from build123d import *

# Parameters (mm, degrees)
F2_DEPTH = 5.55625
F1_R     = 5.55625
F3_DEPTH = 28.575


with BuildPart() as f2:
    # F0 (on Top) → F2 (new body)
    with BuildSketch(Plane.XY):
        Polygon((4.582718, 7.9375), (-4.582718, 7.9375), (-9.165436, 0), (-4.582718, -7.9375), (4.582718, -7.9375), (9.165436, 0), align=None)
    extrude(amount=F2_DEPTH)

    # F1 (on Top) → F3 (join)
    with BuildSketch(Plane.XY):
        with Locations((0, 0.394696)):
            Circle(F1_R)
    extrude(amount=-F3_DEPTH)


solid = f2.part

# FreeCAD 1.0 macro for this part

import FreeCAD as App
import Part
import Sketcher
Q = App.Units.Quantity


def add_polygon(sketch, points):
    """Adds a closed chain of lines whose ends are joined by coincident constraints."""
    first, n = sketch.GeometryCount, len(points)
    for a, b in zip(points, points[1:] + points[:1]):
        sketch.addGeometry(Part.LineSegment(App.Vector(*a, 0), App.Vector(*b, 0)), False)
    for i in range(n):
        sketch.addConstraint(Sketcher.Constraint("Coincident", first + i, 2, first + (i + 1) % n, 1))

doc = App.newDocument("Part")
body = doc.addObject("PartDesign::Body", "Body")

sketch1 = body.newObject("Sketcher::SketchObject", "Sketch")
sketch1.AttachmentSupport = (doc.getObject("XY_Plane"), [""])
sketch1.MapMode = "FlatFace"
add_polygon(sketch1, [(4.582718, 7.9375), (-4.582718, 7.9375), (-9.165436, 0), (-4.582718, -7.9375), (4.582718, -7.9375), (9.165436, 0)])
sketch1.addConstraint([
    Sketcher.Constraint("Horizontal", 0),
    Sketcher.Constraint("Horizontal", 3),
    Sketcher.Constraint("Symmetric", 0, 2, 3, 2, -1, 1),
    Sketcher.Constraint("Symmetric", 1, 2, 4, 2, -1, 1),
    Sketcher.Constraint("PointOnObject", 1, 2, -1),
    Sketcher.Constraint("Parallel", 2, 5),
    Sketcher.Constraint("Vertical", 0, 2, 2, 2),
    Sketcher.Constraint("Angle", 1, Q("-120.000001 deg")),
    Sketcher.Constraint("DistanceY", -1, 1, 0, 2, Q("0.3125 in")),
    Sketcher.Constraint("DistanceX", 0, 2, 0, 1, Q("9.165436 mm")),
])
pad1 = body.newObject("PartDesign::Pad", "Pad")
pad1.Profile = sketch1
pad1.Length = Q("0.21875 in")

sketch2 = body.newObject("Sketcher::SketchObject", "Sketch001")
sketch2.AttachmentSupport = (doc.getObject("XY_Plane"), [""])
sketch2.MapMode = "FlatFace"
sketch2.addGeometry(Part.Circle(App.Vector(0, 0.394696, 0), App.Vector(0, 0, 1), 5.55625), False)
sketch2.addConstraint([
    Sketcher.Constraint("PointOnObject", 0, 3, -2),
    Sketcher.Constraint("Diameter", 0, Q("0.4375 in")),
    Sketcher.Constraint("DistanceY", -1, 1, 0, 3, Q("0.394696 mm")),
])
pad2 = body.newObject("PartDesign::Pad", "Pad001")
pad2.Profile = sketch2
pad2.Length = Q("1.125 in")
pad2.Reversed = True

doc.recompute()
